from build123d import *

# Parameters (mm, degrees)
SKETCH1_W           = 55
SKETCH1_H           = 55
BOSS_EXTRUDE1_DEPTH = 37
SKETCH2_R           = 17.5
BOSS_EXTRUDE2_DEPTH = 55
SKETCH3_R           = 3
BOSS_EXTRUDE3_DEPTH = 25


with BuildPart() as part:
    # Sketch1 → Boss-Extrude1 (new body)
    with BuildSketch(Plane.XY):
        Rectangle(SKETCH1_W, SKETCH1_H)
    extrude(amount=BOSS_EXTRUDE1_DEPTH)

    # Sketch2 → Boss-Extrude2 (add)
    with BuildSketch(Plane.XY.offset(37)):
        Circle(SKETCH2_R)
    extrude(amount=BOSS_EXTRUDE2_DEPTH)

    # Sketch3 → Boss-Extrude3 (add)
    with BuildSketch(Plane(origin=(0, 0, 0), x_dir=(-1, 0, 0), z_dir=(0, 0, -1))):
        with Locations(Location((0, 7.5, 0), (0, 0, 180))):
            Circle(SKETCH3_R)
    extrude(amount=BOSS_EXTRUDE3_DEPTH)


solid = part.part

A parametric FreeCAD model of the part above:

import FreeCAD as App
import Part
import Sketcher
Q = App.Units.Quantity

doc = App.newDocument("Part")
body = doc.addObject("PartDesign::Body", "Body")

sketch1 = body.newObject("Sketcher::SketchObject", "Sketch")
sketch1.AttachmentSupport = (doc.getObject("XY_Plane"), [""])
sketch1.MapMode = "FlatFace"
sketch1.addGeometry([
    Part.LineSegment(App.Vector(-28, 28, 0), App.Vector(-28, -28, 0)),
    Part.LineSegment(App.Vector(-28, -28, 0), App.Vector(28, -28, 0)),
    Part.LineSegment(App.Vector(28, -28, 0), App.Vector(28, 28, 0)),
    Part.LineSegment(App.Vector(28, 28, 0), App.Vector(-28, 28, 0)),
], False)
sketch1.addConstraint([
    Sketcher.Constraint("Coincident", 0, 2, 1, 1),
    Sketcher.Constraint("Coincident", 1, 2, 2, 1),
    Sketcher.Constraint("Coincident", 2, 2, 3, 1),
    Sketcher.Constraint("Coincident", 3, 2, 0, 1),
    Sketcher.Constraint("Vertical", 0),
    Sketcher.Constraint("Horizontal", 1),
    Sketcher.Constraint("Vertical", 2),
    Sketcher.Constraint("Horizontal", 3),
    Sketcher.Constraint("Symmetric", 0, 2, 2, 2, -1, 1),
    Sketcher.Constraint("Equal", 3, 0),
    Sketcher.Constraint("DistanceX", 1, 1, 1, 2, Q("55 mm")),
])
pad1 = body.newObject("PartDesign::Pad", "Pad")
pad1.Profile = sketch1
pad1.Length = 37

sketch2 = body.newObject("Sketcher::SketchObject", "Sketch001")
sketch2.AttachmentSupport = (doc.getObject("XY_Plane"), [""])
sketch2.MapMode = "FlatFace"
sketch2.AttachmentOffset = App.Placement(App.Vector(0, 0, 37), App.Rotation())
sketch2.addGeometry(Part.Circle(App.Vector(0, 0, 0), App.Vector(0, 0, 1), 18), False)
sketch2.addConstraint([
    Sketcher.Constraint("Coincident", 0, 3, -1, 1),
    Sketcher.Constraint("Diameter", 0, Q("35 mm")),
])
pad2 = body.newObject("PartDesign::Pad", "Pad001")
pad2.Profile = sketch2
pad2.Length = 55

sketch3 = body.newObject("Sketcher::SketchObject", "Sketch002")
sketch3.AttachmentSupport = (doc.getObject("XY_Plane"), [""])
sketch3.MapMode = "FlatFace"
sketch3.addGeometry(Part.Circle(App.Vector(0, 7.5, 0), App.Vector(0, 0, 1), 3), False)
sketch3.addConstraint([
    Sketcher.Constraint("PointOnObject", 0, 3, -2),
    Sketcher.Constraint("Diameter", 0, Q("6 mm")),
    Sketcher.Constraint("DistanceY", -1, 1, 0, 3, Q("7.5 mm")),
])
pad3 = body.newObject("PartDesign::Pad", "Pad002")
pad3.Profile = sketch3
pad3.Length = 25
pad3.Reversed = True

doc.recompute()
